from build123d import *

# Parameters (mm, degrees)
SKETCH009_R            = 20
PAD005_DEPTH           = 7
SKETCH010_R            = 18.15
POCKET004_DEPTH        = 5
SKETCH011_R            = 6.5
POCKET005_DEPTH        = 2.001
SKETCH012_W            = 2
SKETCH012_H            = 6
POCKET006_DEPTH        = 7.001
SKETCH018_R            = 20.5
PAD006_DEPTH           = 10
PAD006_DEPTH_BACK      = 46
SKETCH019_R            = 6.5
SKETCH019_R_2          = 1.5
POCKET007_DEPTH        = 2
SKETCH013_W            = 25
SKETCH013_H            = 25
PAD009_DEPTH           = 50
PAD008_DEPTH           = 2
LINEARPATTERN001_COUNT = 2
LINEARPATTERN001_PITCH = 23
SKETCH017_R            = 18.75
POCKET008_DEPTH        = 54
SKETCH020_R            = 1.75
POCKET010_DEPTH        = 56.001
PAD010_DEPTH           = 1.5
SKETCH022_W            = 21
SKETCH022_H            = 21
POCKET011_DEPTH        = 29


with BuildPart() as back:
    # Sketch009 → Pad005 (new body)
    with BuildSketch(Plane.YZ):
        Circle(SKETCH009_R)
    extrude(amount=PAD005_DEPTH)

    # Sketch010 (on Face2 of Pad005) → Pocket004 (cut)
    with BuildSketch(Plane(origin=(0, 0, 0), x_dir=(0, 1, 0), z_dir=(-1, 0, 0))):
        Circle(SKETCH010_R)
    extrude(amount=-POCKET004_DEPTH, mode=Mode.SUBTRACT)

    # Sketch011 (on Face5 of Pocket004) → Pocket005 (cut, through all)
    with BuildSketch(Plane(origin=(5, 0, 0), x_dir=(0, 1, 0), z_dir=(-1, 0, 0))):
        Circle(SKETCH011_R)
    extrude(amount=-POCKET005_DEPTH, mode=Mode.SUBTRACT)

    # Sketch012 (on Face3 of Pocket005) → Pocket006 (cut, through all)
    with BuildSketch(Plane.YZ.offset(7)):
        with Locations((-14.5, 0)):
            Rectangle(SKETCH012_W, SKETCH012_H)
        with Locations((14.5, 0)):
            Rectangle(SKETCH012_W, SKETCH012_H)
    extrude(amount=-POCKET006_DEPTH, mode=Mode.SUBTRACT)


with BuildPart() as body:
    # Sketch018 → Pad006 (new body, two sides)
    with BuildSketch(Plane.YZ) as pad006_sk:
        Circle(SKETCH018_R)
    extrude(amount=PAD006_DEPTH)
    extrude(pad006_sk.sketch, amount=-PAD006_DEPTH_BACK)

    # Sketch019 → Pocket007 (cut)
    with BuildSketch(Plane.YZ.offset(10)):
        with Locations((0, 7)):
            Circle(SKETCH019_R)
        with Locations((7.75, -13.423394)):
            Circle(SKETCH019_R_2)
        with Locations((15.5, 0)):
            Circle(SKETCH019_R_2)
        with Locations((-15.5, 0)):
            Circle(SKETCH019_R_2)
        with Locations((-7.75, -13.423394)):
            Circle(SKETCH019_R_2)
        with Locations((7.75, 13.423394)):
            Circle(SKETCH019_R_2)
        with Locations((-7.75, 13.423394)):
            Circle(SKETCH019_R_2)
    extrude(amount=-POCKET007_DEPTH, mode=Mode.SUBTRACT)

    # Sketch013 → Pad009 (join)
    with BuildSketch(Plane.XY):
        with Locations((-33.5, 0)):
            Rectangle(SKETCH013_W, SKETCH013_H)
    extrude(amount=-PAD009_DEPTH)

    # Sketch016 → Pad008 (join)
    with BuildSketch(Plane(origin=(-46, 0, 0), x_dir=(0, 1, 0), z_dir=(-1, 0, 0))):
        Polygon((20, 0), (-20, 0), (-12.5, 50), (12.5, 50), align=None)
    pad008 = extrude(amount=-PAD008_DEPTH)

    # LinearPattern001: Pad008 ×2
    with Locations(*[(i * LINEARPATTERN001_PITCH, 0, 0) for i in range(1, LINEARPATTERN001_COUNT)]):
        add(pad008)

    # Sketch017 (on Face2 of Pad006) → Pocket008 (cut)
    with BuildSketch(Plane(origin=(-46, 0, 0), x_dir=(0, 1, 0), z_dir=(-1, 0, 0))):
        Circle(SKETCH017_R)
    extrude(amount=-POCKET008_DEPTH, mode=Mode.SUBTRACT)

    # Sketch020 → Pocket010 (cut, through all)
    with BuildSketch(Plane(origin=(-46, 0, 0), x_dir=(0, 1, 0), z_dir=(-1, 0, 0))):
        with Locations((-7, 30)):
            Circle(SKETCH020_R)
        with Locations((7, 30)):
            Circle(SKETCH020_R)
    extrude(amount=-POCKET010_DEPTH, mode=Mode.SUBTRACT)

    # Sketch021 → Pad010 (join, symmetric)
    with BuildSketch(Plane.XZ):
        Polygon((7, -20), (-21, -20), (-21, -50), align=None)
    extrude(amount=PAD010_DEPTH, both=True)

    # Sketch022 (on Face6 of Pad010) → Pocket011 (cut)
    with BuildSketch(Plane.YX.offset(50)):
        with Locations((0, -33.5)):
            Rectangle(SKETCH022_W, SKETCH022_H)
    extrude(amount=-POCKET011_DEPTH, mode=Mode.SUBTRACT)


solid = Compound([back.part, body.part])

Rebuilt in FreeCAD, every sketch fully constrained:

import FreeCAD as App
import Part
import Sketcher
from FreeCAD import Vector
Q = App.Units.Quantity

doc = App.newDocument("Part")
body = doc.addObject("PartDesign::Body", "Body")

# Sketch on YZ plane
sketch1 = doc.addObject("Sketcher::SketchObject", "Sketch")
body.addObject(sketch1)
sketch1.AttachmentSupport = (doc.YZ_Plane, [""])
sketch1.MapMode = "FlatFace"
sketch1.addGeometry(Part.Circle(Vector(0, 0, 0), Vector(0, 0, 1), 20), False)
sketch1.addConstraint(Sketcher.Constraint("Coincident", 0, 3, -1, 1))
sketch1.addConstraint(Sketcher.Constraint("Diameter", 0, Q("40 mm")))
pad1 = doc.addObject("PartDesign::Pad", "Pad")
body.addObject(pad1)
pad1.Profile = sketch1
pad1.Length = 7

# Sketch on YZ plane
sketch2 = doc.addObject("Sketcher::SketchObject", "Sketch001")
body.addObject(sketch2)
sketch2.AttachmentSupport = (doc.YZ_Plane, [""])
sketch2.MapMode = "FlatFace"
sketch2.addGeometry(Part.Circle(Vector(0, 0, 0), Vector(0, 0, 1), 18.15), False)
sketch2.addConstraint(Sketcher.Constraint("Coincident", 0, 3, -1, 1))
sketch2.addConstraint(Sketcher.Constraint("Diameter", 0, Q("36.3 mm")))
pocket1 = doc.addObject("PartDesign::Pocket", "Pocket")
body.addObject(pocket1)
pocket1.Profile = sketch2
pocket1.Length = 5
pocket1.Reversed = True

# Sketch on YZ plane
sketch3 = doc.addObject("Sketcher::SketchObject", "Sketch002")
body.addObject(sketch3)
sketch3.AttachmentSupport = (doc.YZ_Plane, [""])
sketch3.MapMode = "FlatFace"
sketch3.AttachmentOffset = App.Placement(Vector(0, 0, 5), App.Rotation())
sketch3.addGeometry(Part.Circle(Vector(0, 0, 0), Vector(0, 0, 1), 6.5), False)
sketch3.addConstraint(Sketcher.Constraint("Coincident", 0, 3, -1, 1))
sketch3.addConstraint(Sketcher.Constraint("Diameter", 0, Q("13 mm")))
pocket2 = doc.addObject("PartDesign::Pocket", "Pocket001")
body.addObject(pocket2)
pocket2.Profile = sketch3
pocket2.Type = "ThroughAll"
pocket2.Reversed = True

# Sketch on YZ plane
sketch4 = doc.addObject("Sketcher::SketchObject", "Sketch003")
body.addObject(sketch4)
sketch4.AttachmentSupport = (doc.YZ_Plane, [""])
sketch4.MapMode = "FlatFace"
sketch4.AttachmentOffset = App.Placement(Vector(0, 0, 7), App.Rotation())
sketch4.addGeometry(Part.LineSegment(Vector(-15.5, 3, 0), Vector(-15.5, -3, 0)), False)
sketch4.addGeometry(Part.LineSegment(Vector(-15.5, -3, 0), Vector(-13.5, -3, 0)), False)
sketch4.addGeometry(Part.LineSegment(Vector(-13.5, -3, 0), Vector(-13.5, 3, 0)), False)
sketch4.addGeometry(Part.LineSegment(Vector(-13.5, 3, 0), Vector(-15.5, 3, 0)), False)
sketch4.addGeometry(Part.LineSegment(Vector(13.5, 3, 0), Vector(13.5, -3, 0)), False)
sketch4.addGeometry(Part.LineSegment(Vector(13.5, -3, 0), Vector(15.5, -3, 0)), False)
sketch4.addGeometry(Part.LineSegment(Vector(15.5, -3, 0), Vector(15.5, 3, 0)), False)
sketch4.addGeometry(Part.LineSegment(Vector(15.5, 3, 0), Vector(13.5, 3, 0)), False)
sketch4.addConstraint(Sketcher.Constraint("Coincident", 0, 2, 1, 1))
sketch4.addConstraint(Sketcher.Constraint("Coincident", 1, 2, 2, 1))
sketch4.addConstraint(Sketcher.Constraint("Coincident", 2, 2, 3, 1))
sketch4.addConstraint(Sketcher.Constraint("Coincident", 3, 2, 0, 1))
sketch4.addConstraint(Sketcher.Constraint("Coincident", 4, 2, 5, 1))
sketch4.addConstraint(Sketcher.Constraint("Coincident", 5, 2, 6, 1))
sketch4.addConstraint(Sketcher.Constraint("Coincident", 6, 2, 7, 1))
sketch4.addConstraint(Sketcher.Constraint("Coincident", 7, 2, 4, 1))
sketch4.addConstraint(Sketcher.Constraint("Vertical", 0))
sketch4.addConstraint(Sketcher.Constraint("Horizontal", 1))
sketch4.addConstraint(Sketcher.Constraint("Vertical", 2))
sketch4.addConstraint(Sketcher.Constraint("Horizontal", 3))
sketch4.addConstraint(Sketcher.Constraint("Vertical", 4))
sketch4.addConstraint(Sketcher.Constraint("Horizontal", 5))
sketch4.addConstraint(Sketcher.Constraint("Vertical", 6))
sketch4.addConstraint(Sketcher.Constraint("Horizontal", 7))
sketch4.addConstraint(Sketcher.Constraint("Symmetric", 2, 2, 4, 2, -1, 1))
sketch4.addConstraint(Sketcher.Constraint("Symmetric", 0, 2, 6, 2, -1, 1))
sketch4.addConstraint(Sketcher.Constraint("Horizontal", 1, 2, 4, 2))
sketch4.addConstraint(Sketcher.Constraint("DistanceX", 1, 1, 1, 2, Q("2 mm")))
sketch4.addConstraint(Sketcher.Constraint("DistanceY", 0, 2, 0, 1, Q("6 mm")))
sketch4.addConstraint(Sketcher.Constraint("DistanceX", 1, 2, 4, 2, Q("27 mm")))
pocket3 = doc.addObject("PartDesign::Pocket", "Pocket002")
body.addObject(pocket3)
pocket3.Profile = sketch4
pocket3.Type = "ThroughAll"
body2 = doc.addObject("PartDesign::Body", "Body001")

# Sketch on YZ plane
sketch5 = doc.addObject("Sketcher::SketchObject", "Sketch004")
body2.addObject(sketch5)
sketch5.AttachmentSupport = (doc.getObject("YZ_Plane001"), [""])
sketch5.MapMode = "FlatFace"
sketch5.addGeometry(Part.Circle(Vector(0, 0, 0), Vector(0, 0, 1), 20.5), False)
sketch5.addConstraint(Sketcher.Constraint("Coincident", 0, 3, -1, 1))
sketch5.addConstraint(Sketcher.Constraint("Diameter", 0, Q("41 mm")))
pad2 = doc.addObject("PartDesign::Pad", "Pad001")
body2.addObject(pad2)
pad2.Profile = sketch5
pad2.Type = "TwoLengths"
pad2.Length = 10
pad2.Length2 = 46

# Sketch on YZ plane
sketch6 = doc.addObject("Sketcher::SketchObject", "Sketch005")
body2.addObject(sketch6)
sketch6.AttachmentSupport = (doc.getObject("YZ_Plane001"), [""])
sketch6.MapMode = "FlatFace"
sketch6.AttachmentOffset = App.Placement(Vector(0, 0, 10), App.Rotation())
sketch6.addGeometry(Part.Circle(Vector(0, 7, 0), Vector(0, 0, 1), 6.5), False)
sketch6.addGeometry(Part.Circle(Vector(7.75, -13.423394, 0), Vector(0, 0, 1), 1.5), False)
sketch6.addGeometry(Part.Circle(Vector(15.5, 0, 0), Vector(0, 0, 1), 1.5), False)
sketch6.addGeometry(Part.Circle(Vector(-15.5, 0, 0), Vector(0, 0, 1), 1.5), False)
sketch6.addGeometry(Part.Circle(Vector(-7.75, -13.423394, 0), Vector(0, 0, 1), 1.5), False)
sketch6.addGeometry(Part.Circle(Vector(7.75, 13.423394, 0), Vector(0, 0, 1), 1.5), False)
sketch6.addGeometry(Part.Circle(Vector(-7.75, 13.423394, 0), Vector(0, 0, 1), 1.5), False)
sketch6.addConstraint(Sketcher.Constraint("Equal", 1, 2))
sketch6.addConstraint(Sketcher.Constraint("Equal", 2, 3))
sketch6.addConstraint(Sketcher.Constraint("Equal", 3, 4))
sketch6.addConstraint(Sketcher.Constraint("Equal", 4, 5))
sketch6.addConstraint(Sketcher.Constraint("Equal", 5, 6))
sketch6.addConstraint(Sketcher.Constraint("Symmetric", 2, 3, 3, 3, -1, 1))
sketch6.addConstraint(Sketcher.Constraint("Symmetric", 4, 3, 5, 3, -1, 1))
sketch6.addConstraint(Sketcher.Constraint("Symmetric", 1, 3, 6, 3, -1, 1))
sketch6.addConstraint(Sketcher.Constraint("Symmetric", 1, 3, 4, 3, -2))
sketch6.addConstraint(Sketcher.Constraint("PointOnObject", 0, 3, -2))
sketch6.addConstraint(Sketcher.Constraint("PointOnObject", 2, 3, -1))
sketch6.addConstraint(Sketcher.Constraint("Diameter", 0, Q("13 mm")))
sketch6.addConstraint(Sketcher.Constraint("Diameter", 1, Q("3 mm")))
sketch6.addConstraint(Sketcher.Constraint("DistanceY", -1, 1, 0, 3, Q("7 mm")))
sketch6.addConstraint(Sketcher.Constraint("DistanceX", 3, 3, 2, 3, Q("31 mm")))
sketch6.addConstraint(Sketcher.Constraint("DistanceX", 4, 3, 1, 3, Q("15.5 mm")))
sketch6.addConstraint(Sketcher.Constraint("DistanceY", 1, 3, 5, 3, Q("26.846788 mm")))
pocket4 = doc.addObject("PartDesign::Pocket", "Pocket003")
body2.addObject(pocket4)
pocket4.Profile = sketch6
pocket4.Length = 2

# Sketch on XY plane
sketch7 = doc.addObject("Sketcher::SketchObject", "Sketch006")
body2.addObject(sketch7)
sketch7.AttachmentSupport = (doc.getObject("XY_Plane001"), [""])
sketch7.MapMode = "FlatFace"
sketch7.addGeometry(Part.LineSegment(Vector(-46, 12.5, 0), Vector(-46, -12.5, 0)), False)
sketch7.addGeometry(Part.LineSegment(Vector(-46, -12.5, 0), Vector(-21, -12.5, 0)), False)
sketch7.addGeometry(Part.LineSegment(Vector(-21, -12.5, 0), Vector(-21, 12.5, 0)), False)
sketch7.addGeometry(Part.LineSegment(Vector(-21, 12.5, 0), Vector(-46, 12.5, 0)), False)
sketch7.addConstraint(Sketcher.Constraint("Coincident", 0, 2, 1, 1))
sketch7.addConstraint(Sketcher.Constraint("Coincident", 1, 2, 2, 1))
sketch7.addConstraint(Sketcher.Constraint("Coincident", 2, 2, 3, 1))
sketch7.addConstraint(Sketcher.Constraint("Coincident", 3, 2, 0, 1))
sketch7.addConstraint(Sketcher.Constraint("Vertical", 0))
sketch7.addConstraint(Sketcher.Constraint("Horizontal", 1))
sketch7.addConstraint(Sketcher.Constraint("Vertical", 2))
sketch7.addConstraint(Sketcher.Constraint("Horizontal", 3))
sketch7.addConstraint(Sketcher.Constraint("Equal", 3, 0))
sketch7.addConstraint(Sketcher.Constraint("DistanceX", 1, 1, 1, 2, Q("25 mm")))
sketch7.addConstraint(Sketcher.Constraint("DistanceX", 0, 2, -1, 1, Q("46 mm")))
sketch7.addConstraint(Sketcher.Constraint("DistanceY", 0, 2, -1, 1, Q("12.5 mm")))
pad3 = doc.addObject("PartDesign::Pad", "Pad002")
body2.addObject(pad3)
pad3.Profile = sketch7
pad3.Length = 50
pad3.Reversed = True

# Sketch on YZ plane
sketch8 = doc.addObject("Sketcher::SketchObject", "Sketch007")
body2.addObject(sketch8)
sketch8.AttachmentSupport = (doc.getObject("YZ_Plane001"), [""])
sketch8.MapMode = "FlatFace"
sketch8.AttachmentOffset = App.Placement(Vector(0, 0, -46), App.Rotation())
sketch8.addGeometry(Part.LineSegment(Vector(-20, 0, 0), Vector(20, 0, 0)), False)
sketch8.addGeometry(Part.LineSegment(Vector(20, 0, 0), Vector(12.5, -50, 0)), False)
sketch8.addGeometry(Part.LineSegment(Vector(12.5, -50, 0), Vector(-12.5, -50, 0)), False)
sketch8.addGeometry(Part.LineSegment(Vector(-12.5, -50, 0), Vector(-20, 0, 0)), False)
sketch8.addConstraint(Sketcher.Constraint("Coincident", 0, 2, 1, 1))
sketch8.addConstraint(Sketcher.Constraint("Coincident", 1, 2, 2, 1))
sketch8.addConstraint(Sketcher.Constraint("Coincident", 2, 2, 3, 1))
sketch8.addConstraint(Sketcher.Constraint("Coincident", 3, 2, 0, 1))
sketch8.addConstraint(Sketcher.Constraint("Horizontal", 0))
sketch8.addConstraint(Sketcher.Constraint("Horizontal", 2))
sketch8.addConstraint(Sketcher.Constraint("Symmetric", 0, 2, 3, 2, -1, 1))
sketch8.addConstraint(Sketcher.Constraint("Equal", 1, 3))
sketch8.addConstraint(Sketcher.Constraint("DistanceX", 0, 1, 0, 2, Q("40 mm")))
sketch8.addConstraint(Sketcher.Constraint("DistanceX", 2, 2, 2, 1, Q("25 mm")))
sketch8.addConstraint(Sketcher.Constraint("DistanceY", 1, 2, -1, 1, Q("50 mm")))
pad4 = doc.addObject("PartDesign::Pad", "Pad003")
body2.addObject(pad4)
pad4.Profile = sketch8
pad4.Length = 2
doc.recompute()

linearpattern = doc.addObject("PartDesign::LinearPattern", "LinearPattern")
body2.addObject(linearpattern)
linearpattern.Originals = [pad4]
linearpattern.Direction = (doc.getObject("X_Axis001"), [""])
linearpattern.Mode = "offset"
linearpattern.Offset = 23
linearpattern.Occurrences = 2
body2.Tip = linearpattern

# Sketch on YZ plane
sketch9 = doc.addObject("Sketcher::SketchObject", "Sketch008")
body2.addObject(sketch9)
sketch9.AttachmentSupport = (doc.getObject("YZ_Plane001"), [""])
sketch9.MapMode = "FlatFace"
sketch9.AttachmentOffset = App.Placement(Vector(0, 0, -46), App.Rotation())
sketch9.addGeometry(Part.Circle(Vector(0, 0, 0), Vector(0, 0, 1), 18.75), False)
sketch9.addConstraint(Sketcher.Constraint("Coincident", 0, 3, -1, 1))
sketch9.addConstraint(Sketcher.Constraint("Diameter", 0, Q("37.5 mm")))
pocket5 = doc.addObject("PartDesign::Pocket", "Pocket004")
body2.addObject(pocket5)
pocket5.Profile = sketch9
pocket5.Length = 54
pocket5.Reversed = True

# Sketch on YZ plane
sketch10 = doc.addObject("Sketcher::SketchObject", "Sketch009")
body2.addObject(sketch10)
sketch10.AttachmentSupport = (doc.getObject("YZ_Plane001"), [""])
sketch10.MapMode = "FlatFace"
sketch10.AttachmentOffset = App.Placement(Vector(0, 0, -46), App.Rotation())
sketch10.addGeometry(Part.Circle(Vector(-7, -30, 0), Vector(0, 0, 1), 1.75), False)
sketch10.addGeometry(Part.Circle(Vector(7, -30, 0), Vector(0, 0, 1), 1.75), False)
sketch10.addConstraint(Sketcher.Constraint("Equal", 0, 1))
sketch10.addConstraint(Sketcher.Constraint("Symmetric", 0, 3, 1, 3, -2))
sketch10.addConstraint(Sketcher.Constraint("Diameter", 0, Q("3.5 mm")))
sketch10.addConstraint(Sketcher.Constraint("DistanceX", 0, 3, -1, 1, Q("7 mm")))
sketch10.addConstraint(Sketcher.Constraint("DistanceY", 0, 3, -1, 1, Q("30 mm")))
pocket6 = doc.addObject("PartDesign::Pocket", "Pocket005")
body2.addObject(pocket6)
pocket6.Profile = sketch10
pocket6.Type = "ThroughAll"
pocket6.Reversed = True

# Sketch on XZ plane
sketch11 = doc.addObject("Sketcher::SketchObject", "Sketch010")
body2.addObject(sketch11)
sketch11.AttachmentSupport = (doc.getObject("XZ_Plane001"), [""])
sketch11.MapMode = "FlatFace"
sketch11.addGeometry(Part.LineSegment(Vector(7, -20, 0), Vector(-21, -20, 0)), False)
sketch11.addGeometry(Part.LineSegment(Vector(-21, -20, 0), Vector(-21, -50, 0)), False)
sketch11.addGeometry(Part.LineSegment(Vector(-21, -50, 0), Vector(7, -20, 0)), False)
sketch11.addConstraint(Sketcher.Constraint("Coincident", 0, 2, 1, 1))
sketch11.addConstraint(Sketcher.Constraint("Coincident", 1, 2, 2, 1))
sketch11.addConstraint(Sketcher.Constraint("Coincident", 2, 2, 0, 1))
sketch11.addConstraint(Sketcher.Constraint("Horizontal", 0))
sketch11.addConstraint(Sketcher.Constraint("Vertical", 1))
sketch11.addConstraint(Sketcher.Constraint("DistanceX", 0, 2, 0, 1, Q("28 mm")))
sketch11.addConstraint(Sketcher.Constraint("DistanceY", 1, 2, 1, 1, Q("30 mm")))
sketch11.addConstraint(Sketcher.Constraint("DistanceX", 0, 2, -1, 1, Q("21 mm")))
sketch11.addConstraint(Sketcher.Constraint("DistanceY", 0, 2, -1, 1, Q("20 mm")))
pad5 = doc.addObject("PartDesign::Pad", "Pad004")
body2.addObject(pad5)
pad5.Profile = sketch11
pad5.Length = 3
pad5.Midplane = True

# Sketch on XY plane
sketch12 = doc.addObject("Sketcher::SketchObject", "Sketch011")
body2.addObject(sketch12)
sketch12.AttachmentSupport = (doc.getObject("XY_Plane001"), [""])
sketch12.MapMode = "FlatFace"
sketch12.AttachmentOffset = App.Placement(Vector(0, 0, -50), App.Rotation())
sketch12.addGeometry(Part.LineSegment(Vector(-23, -10.5, 0), Vector(-44, -10.5, 0)), False)
sketch12.addGeometry(Part.LineSegment(Vector(-44, -10.5, 0), Vector(-44, 10.5, 0)), False)
sketch12.addGeometry(Part.LineSegment(Vector(-44, 10.5, 0), Vector(-23, 10.5, 0)), False)
sketch12.addGeometry(Part.LineSegment(Vector(-23, 10.5, 0), Vector(-23, -10.5, 0)), False)
sketch12.addConstraint(Sketcher.Constraint("Coincident", 0, 2, 1, 1))
sketch12.addConstraint(Sketcher.Constraint("Coincident", 1, 2, 2, 1))
sketch12.addConstraint(Sketcher.Constraint("Coincident", 2, 2, 3, 1))
sketch12.addConstraint(Sketcher.Constraint("Coincident", 3, 2, 0, 1))
sketch12.addConstraint(Sketcher.Constraint("Horizontal", 0))
sketch12.addConstraint(Sketcher.Constraint("Vertical", 1))
sketch12.addConstraint(Sketcher.Constraint("Horizontal", 2))
sketch12.addConstraint(Sketcher.Constraint("Vertical", 3))
sketch12.addConstraint(Sketcher.Constraint("Equal", 2, 1))
sketch12.addConstraint(Sketcher.Constraint("DistanceX", 0, 2, 0, 1, Q("21 mm")))
sketch12.addConstraint(Sketcher.Constraint("DistanceX", 0, 2, -1, 1, Q("44 mm")))
sketch12.addConstraint(Sketcher.Constraint("DistanceY", 0, 2, -1, 1, Q("10.5 mm")))
pocket7 = doc.addObject("PartDesign::Pocket", "Pocket006")
body2.addObject(pocket7)
pocket7.Profile = sketch12
pocket7.Length = 29
pocket7.Reversed = True

doc.recompute()
